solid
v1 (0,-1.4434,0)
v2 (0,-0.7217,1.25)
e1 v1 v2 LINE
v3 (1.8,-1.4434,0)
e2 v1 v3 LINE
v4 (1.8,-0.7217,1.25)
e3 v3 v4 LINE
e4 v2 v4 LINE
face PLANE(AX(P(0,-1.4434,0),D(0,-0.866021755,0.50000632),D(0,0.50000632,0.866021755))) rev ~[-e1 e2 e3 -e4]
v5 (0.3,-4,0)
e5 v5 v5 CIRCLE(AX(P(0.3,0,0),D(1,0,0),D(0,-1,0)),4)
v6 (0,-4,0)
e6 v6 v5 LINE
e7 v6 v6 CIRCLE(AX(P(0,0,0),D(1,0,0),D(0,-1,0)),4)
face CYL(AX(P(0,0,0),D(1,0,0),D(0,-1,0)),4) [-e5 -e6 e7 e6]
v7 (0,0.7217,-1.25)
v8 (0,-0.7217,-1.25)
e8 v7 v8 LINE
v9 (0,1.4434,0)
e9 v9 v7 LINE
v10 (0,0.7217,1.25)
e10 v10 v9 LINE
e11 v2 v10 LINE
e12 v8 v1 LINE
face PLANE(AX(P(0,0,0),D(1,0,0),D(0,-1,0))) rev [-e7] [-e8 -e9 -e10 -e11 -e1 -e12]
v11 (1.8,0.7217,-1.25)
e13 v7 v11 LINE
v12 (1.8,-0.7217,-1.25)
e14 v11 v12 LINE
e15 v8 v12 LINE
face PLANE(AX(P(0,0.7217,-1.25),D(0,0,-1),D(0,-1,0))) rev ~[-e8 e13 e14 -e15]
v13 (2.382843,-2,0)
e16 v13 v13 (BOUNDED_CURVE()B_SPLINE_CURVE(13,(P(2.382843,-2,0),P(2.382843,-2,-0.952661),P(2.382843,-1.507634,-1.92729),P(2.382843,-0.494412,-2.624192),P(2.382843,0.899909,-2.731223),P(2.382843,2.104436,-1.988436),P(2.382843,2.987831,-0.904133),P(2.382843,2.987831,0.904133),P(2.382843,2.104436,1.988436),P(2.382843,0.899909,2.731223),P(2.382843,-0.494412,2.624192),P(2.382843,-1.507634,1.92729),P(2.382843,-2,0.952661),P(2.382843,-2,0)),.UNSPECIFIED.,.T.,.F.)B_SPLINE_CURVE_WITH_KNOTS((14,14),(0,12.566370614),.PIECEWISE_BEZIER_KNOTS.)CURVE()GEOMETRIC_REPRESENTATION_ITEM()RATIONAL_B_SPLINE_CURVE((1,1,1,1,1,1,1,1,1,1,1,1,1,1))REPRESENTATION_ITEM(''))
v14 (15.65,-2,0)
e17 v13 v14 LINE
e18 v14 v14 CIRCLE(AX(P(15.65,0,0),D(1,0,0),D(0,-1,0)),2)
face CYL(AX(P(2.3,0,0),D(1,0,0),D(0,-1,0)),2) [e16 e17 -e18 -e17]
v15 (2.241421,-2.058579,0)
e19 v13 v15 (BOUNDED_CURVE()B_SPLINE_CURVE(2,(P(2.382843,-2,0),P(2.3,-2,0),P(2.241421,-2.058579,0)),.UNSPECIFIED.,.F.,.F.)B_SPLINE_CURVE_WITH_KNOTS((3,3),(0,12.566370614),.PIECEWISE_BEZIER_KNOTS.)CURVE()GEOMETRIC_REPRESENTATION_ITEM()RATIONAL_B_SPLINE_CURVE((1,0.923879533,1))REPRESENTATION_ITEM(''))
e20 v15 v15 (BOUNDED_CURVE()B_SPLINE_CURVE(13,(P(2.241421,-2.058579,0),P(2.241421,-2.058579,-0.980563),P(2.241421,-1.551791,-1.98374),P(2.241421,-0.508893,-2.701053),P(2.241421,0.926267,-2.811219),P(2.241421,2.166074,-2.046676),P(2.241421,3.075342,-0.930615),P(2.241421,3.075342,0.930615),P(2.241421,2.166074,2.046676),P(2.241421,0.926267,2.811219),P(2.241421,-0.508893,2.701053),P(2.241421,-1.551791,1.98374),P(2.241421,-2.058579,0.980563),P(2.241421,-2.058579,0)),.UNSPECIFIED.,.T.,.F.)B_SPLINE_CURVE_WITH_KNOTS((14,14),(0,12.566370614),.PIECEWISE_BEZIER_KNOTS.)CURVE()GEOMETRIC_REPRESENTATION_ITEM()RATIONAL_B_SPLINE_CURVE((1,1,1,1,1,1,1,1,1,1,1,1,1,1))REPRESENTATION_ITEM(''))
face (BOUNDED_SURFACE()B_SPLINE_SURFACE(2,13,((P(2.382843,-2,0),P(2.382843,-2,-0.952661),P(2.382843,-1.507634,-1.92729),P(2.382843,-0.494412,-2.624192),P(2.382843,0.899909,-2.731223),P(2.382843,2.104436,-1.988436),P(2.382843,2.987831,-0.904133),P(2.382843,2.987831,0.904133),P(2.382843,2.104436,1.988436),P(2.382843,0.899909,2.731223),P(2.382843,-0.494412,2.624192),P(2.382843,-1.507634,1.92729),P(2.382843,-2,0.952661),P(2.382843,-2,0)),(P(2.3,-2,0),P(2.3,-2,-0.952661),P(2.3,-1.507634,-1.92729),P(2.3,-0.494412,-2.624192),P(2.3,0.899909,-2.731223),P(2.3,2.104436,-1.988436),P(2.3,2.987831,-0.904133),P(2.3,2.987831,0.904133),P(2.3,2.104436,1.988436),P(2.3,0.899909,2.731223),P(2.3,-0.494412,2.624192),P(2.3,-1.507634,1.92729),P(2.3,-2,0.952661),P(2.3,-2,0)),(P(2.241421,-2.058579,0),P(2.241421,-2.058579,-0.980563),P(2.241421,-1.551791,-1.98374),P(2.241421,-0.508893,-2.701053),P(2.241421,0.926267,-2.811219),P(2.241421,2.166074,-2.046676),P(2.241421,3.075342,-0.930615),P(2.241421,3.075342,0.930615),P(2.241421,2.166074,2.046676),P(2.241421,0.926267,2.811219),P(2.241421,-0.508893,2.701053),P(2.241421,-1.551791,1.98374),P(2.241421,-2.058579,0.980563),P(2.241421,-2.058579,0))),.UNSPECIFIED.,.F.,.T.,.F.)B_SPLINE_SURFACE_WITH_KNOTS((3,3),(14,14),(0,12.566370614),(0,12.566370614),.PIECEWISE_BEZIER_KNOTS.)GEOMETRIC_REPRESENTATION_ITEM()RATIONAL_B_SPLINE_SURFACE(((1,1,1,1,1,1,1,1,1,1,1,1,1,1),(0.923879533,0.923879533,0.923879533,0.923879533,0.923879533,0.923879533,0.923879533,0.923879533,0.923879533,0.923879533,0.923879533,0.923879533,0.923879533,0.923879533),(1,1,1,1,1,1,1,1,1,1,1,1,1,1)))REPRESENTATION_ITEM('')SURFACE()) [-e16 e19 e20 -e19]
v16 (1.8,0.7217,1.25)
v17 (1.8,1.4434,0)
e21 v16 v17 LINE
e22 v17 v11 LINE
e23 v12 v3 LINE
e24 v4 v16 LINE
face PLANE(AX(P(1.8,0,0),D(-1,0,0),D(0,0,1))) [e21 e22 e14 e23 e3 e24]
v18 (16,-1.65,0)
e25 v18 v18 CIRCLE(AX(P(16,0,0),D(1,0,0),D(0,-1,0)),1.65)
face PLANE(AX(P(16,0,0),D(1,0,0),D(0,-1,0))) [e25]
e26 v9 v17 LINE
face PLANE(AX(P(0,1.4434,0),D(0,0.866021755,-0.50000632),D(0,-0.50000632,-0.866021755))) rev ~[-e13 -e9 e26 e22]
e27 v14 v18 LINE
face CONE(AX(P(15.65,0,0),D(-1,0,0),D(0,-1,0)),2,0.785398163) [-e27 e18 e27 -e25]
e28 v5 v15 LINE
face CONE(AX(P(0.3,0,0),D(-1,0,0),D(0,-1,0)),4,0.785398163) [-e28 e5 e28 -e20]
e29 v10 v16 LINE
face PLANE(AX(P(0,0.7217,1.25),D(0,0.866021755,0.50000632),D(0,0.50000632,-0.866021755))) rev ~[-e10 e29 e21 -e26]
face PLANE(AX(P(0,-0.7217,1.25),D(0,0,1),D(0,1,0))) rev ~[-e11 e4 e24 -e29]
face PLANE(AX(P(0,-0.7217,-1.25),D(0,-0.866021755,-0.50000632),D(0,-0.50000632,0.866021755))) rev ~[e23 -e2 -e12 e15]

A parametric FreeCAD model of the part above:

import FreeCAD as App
import Part
import Sketcher
from FreeCAD import Vector
Q = App.Units.Quantity


def edges_at(feature, points):
    """Names of the edges that pass closest to the given points."""
    edges = feature.Shape.Edges
    near = lambda p: min(range(len(edges)), key=lambda i: edges[i].distToShape(Part.Vertex(*p))[0])
    return sorted({f"Edge{near(p) + 1}" for p in points})

doc = App.newDocument("Part")
body = doc.addObject("PartDesign::Body", "Body")

# Sketch on XY plane
sketch1 = doc.addObject("Sketcher::SketchObject", "Sketch")
body.addObject(sketch1)
sketch1.AttachmentSupport = (doc.XY_Plane, [""])
sketch1.MapMode = "FlatFace"
sketch1.addGeometry(Part.LineSegment(Vector(2.3, -2, 0), Vector(16, -2, 0)), False)
sketch1.addGeometry(Part.LineSegment(Vector(16, -2, 0), Vector(16, 0, 0)), False)
sketch1.addGeometry(Part.LineSegment(Vector(16, 0, 0), Vector(0, 0, 0)), False)
sketch1.addGeometry(Part.LineSegment(Vector(0, 0, 0), Vector(0, -4, 0)), False)
sketch1.addGeometry(Part.LineSegment(Vector(0, -4, 0), Vector(0.3, -4, 0)), False)
sketch1.addGeometry(Part.LineSegment(Vector(0.3, -4, 0), Vector(2.3, -2, 0)), False)
sketch1.addConstraint(Sketcher.Constraint("Coincident", 0, 2, 1, 1))
sketch1.addConstraint(Sketcher.Constraint("Coincident", 1, 2, 2, 1))
sketch1.addConstraint(Sketcher.Constraint("Coincident", 2, 2, 3, 1))
sketch1.addConstraint(Sketcher.Constraint("Coincident", 3, 2, 4, 1))
sketch1.addConstraint(Sketcher.Constraint("Coincident", 4, 2, 5, 1))
sketch1.addConstraint(Sketcher.Constraint("Coincident", 5, 2, 0, 1))
sketch1.addConstraint(Sketcher.Constraint("Horizontal", 0))
sketch1.addConstraint(Sketcher.Constraint("Vertical", 1))
sketch1.addConstraint(Sketcher.Constraint("Horizontal", 2))
sketch1.addConstraint(Sketcher.Constraint("Vertical", 3))
sketch1.addConstraint(Sketcher.Constraint("Horizontal", 4))
sketch1.addConstraint(Sketcher.Constraint("Coincident", 2, 2, -1, 1))
sketch1.addConstraint(Sketcher.Constraint("DistanceX", 2, 2, 2, 1, Q("16 mm")))
sketch1.addConstraint(Sketcher.Constraint("DistanceY", 1, 1, 1, 2, Q("2 mm")))
sketch1.addConstraint(Sketcher.Constraint("DistanceY", 3, 2, 3, 1, Q("4 mm")))
sketch1.addConstraint(Sketcher.Constraint("Angle", 5, Q("45 deg")))
sketch1.addConstraint(Sketcher.Constraint("DistanceX", 4, 1, 4, 2, Q("0.3 mm")))
revolution = doc.addObject("PartDesign::Revolution", "Revolution")
body.addObject(revolution)
revolution.Profile = sketch1
revolution.ReferenceAxis = (sketch1, ["H_Axis"])
revolution.Angle = 360

# Sketch on YZ plane
sketch2 = doc.addObject("Sketcher::SketchObject", "Sketch001")
body.addObject(sketch2)
sketch2.AttachmentSupport = (doc.YZ_Plane, [""])
sketch2.MapMode = "FlatFace"
sketch2.addGeometry(Part.LineSegment(Vector(1.4, 0, 0), Vector(0.7, -1.2, 0)), False)
sketch2.addGeometry(Part.LineSegment(Vector(0.7, -1.2, 0), Vector(-0.7, -1.2, 0)), False)
sketch2.addGeometry(Part.LineSegment(Vector(-0.7, -1.2, 0), Vector(-1.4, 0, 0)), False)
sketch2.addGeometry(Part.LineSegment(Vector(-1.4, 0, 0), Vector(-0.7, 1.2, 0)), False)
sketch2.addGeometry(Part.LineSegment(Vector(-0.7, 1.2, 0), Vector(0.7, 1.2, 0)), False)
sketch2.addGeometry(Part.LineSegment(Vector(0.7, 1.2, 0), Vector(1.4, 0, 0)), False)
sketch2.addConstraint(Sketcher.Constraint("Coincident", 0, 2, 1, 1))
sketch2.addConstraint(Sketcher.Constraint("Coincident", 1, 2, 2, 1))
sketch2.addConstraint(Sketcher.Constraint("Coincident", 2, 2, 3, 1))
sketch2.addConstraint(Sketcher.Constraint("Coincident", 3, 2, 4, 1))
sketch2.addConstraint(Sketcher.Constraint("Coincident", 4, 2, 5, 1))
sketch2.addConstraint(Sketcher.Constraint("Coincident", 5, 2, 0, 1))
sketch2.addConstraint(Sketcher.Constraint("Horizontal", 1))
sketch2.addConstraint(Sketcher.Constraint("Horizontal", 4))
sketch2.addConstraint(Sketcher.Constraint("Symmetric", 0, 2, 3, 2, -1, 1))
sketch2.addConstraint(Sketcher.Constraint("Symmetric", 2, 2, 5, 2, -1, 1))
sketch2.addConstraint(Sketcher.Constraint("PointOnObject", 2, 2, -1))
sketch2.addConstraint(Sketcher.Constraint("Parallel", 2, 5))
sketch2.addConstraint(Sketcher.Constraint("Vertical", 1, 2, 3, 2))
sketch2.addConstraint(Sketcher.Constraint("Angle", 0, Q("-120.0004 deg")))
sketch2.addConstraint(Sketcher.Constraint("DistanceY", 1, 2, 3, 2, Q("2.5 mm")))
sketch2.addConstraint(Sketcher.Constraint("DistanceX", 1, 2, 1, 1, Q("1.4434 mm")))
pocket1 = doc.addObject("PartDesign::Pocket", "Pocket")
body.addObject(pocket1)
pocket1.Profile = sketch2
pocket1.Length = 1.8
pocket1.Reversed = True
doc.recompute()

fillet = doc.addObject("PartDesign::Fillet", "Fillet")
body.addObject(fillet)
fillet.Base = (pocket1, edges_at(pocket1, [(2.3, 2, 0)]))
fillet.Radius = 0.2
doc.recompute()

chamfer = doc.addObject("PartDesign::Chamfer", "Chamfer")
body.addObject(chamfer)
chamfer.Base = (fillet, edges_at(fillet, [(16, 2, 0)]))
chamfer.Size = 0.35

doc.recompute()
